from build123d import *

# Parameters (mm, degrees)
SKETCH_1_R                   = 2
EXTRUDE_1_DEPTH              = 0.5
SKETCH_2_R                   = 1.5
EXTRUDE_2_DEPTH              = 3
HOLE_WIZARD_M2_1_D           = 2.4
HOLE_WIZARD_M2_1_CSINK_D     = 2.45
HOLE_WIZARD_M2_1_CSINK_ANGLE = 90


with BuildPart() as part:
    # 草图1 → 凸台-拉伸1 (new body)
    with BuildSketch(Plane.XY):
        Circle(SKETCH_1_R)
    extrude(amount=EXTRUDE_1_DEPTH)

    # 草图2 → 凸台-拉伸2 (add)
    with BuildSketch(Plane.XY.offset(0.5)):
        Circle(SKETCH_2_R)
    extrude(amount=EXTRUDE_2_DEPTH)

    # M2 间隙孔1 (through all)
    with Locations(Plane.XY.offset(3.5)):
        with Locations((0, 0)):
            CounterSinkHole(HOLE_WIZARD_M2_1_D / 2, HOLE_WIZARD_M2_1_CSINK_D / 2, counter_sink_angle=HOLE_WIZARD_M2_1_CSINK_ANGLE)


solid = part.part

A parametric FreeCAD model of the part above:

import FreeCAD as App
import Part
import Sketcher
from FreeCAD import Vector

doc = App.newDocument("Part")
body = doc.addObject("PartDesign::Body", "Body")

# Sketch on XY plane
sketch1 = doc.addObject("Sketcher::SketchObject", "Sketch")
body.addObject(sketch1)
sketch1.AttachmentSupport = (doc.XY_Plane, [""])
sketch1.MapMode = "FlatFace"
sketch1.addGeometry(Part.Circle(Vector(0, 0, 0), Vector(0, 0, 1), 2), False)
sketch1.addConstraint([
    Sketcher.Constraint("Coincident", 0, 3, -1, 1),
    Sketcher.Constraint("Diameter", 0, 4.0),
])
pad1 = doc.addObject("PartDesign::Pad", "Pad")
body.addObject(pad1)
pad1.Profile = sketch1
pad1.Length = 0.5

# Sketch on XY plane
sketch2 = doc.addObject("Sketcher::SketchObject", "Sketch001")
body.addObject(sketch2)
sketch2.AttachmentSupport = (doc.XY_Plane, [""])
sketch2.MapMode = "FlatFace"
sketch2.AttachmentOffset = App.Placement(Vector(0, 0, 0.5), App.Rotation())
sketch2.addGeometry(Part.Circle(Vector(0, 0, 0), Vector(0, 0, 1), 1.5), False)
sketch2.addConstraint([
    Sketcher.Constraint("Coincident", 0, 3, -1, 1),
    Sketcher.Constraint("Diameter", 0, 3.0),
])
pad2 = doc.addObject("PartDesign::Pad", "Pad001")
body.addObject(pad2)
pad2.Profile = sketch2
pad2.Length = 3

# Sketch on XY plane
sketch3 = doc.addObject("Sketcher::SketchObject", "Sketch002")
body.addObject(sketch3)
sketch3.AttachmentSupport = (doc.XY_Plane, [""])
sketch3.MapMode = "FlatFace"
sketch3.AttachmentOffset = App.Placement(Vector(0, 0, 3.5), App.Rotation())
sketch3.addGeometry(Part.Circle(Vector(0, 0, 0), Vector(0, 0, 1), 1.2), False)
sketch3.addConstraint([
    Sketcher.Constraint("Coincident", 0, 3, -1, 1),
    Sketcher.Constraint("Diameter", 0, 2.4),
])
doc.recompute()
hole = doc.addObject("PartDesign::Hole", "Hole")
body.addObject(hole)
hole.Profile = sketch3
hole.ThreadType = "None"
hole.Diameter = 2.4
hole.DepthType = "ThroughAll"
hole.HoleCutType = "Countersink"
hole.HoleCutDiameter = 2.45
hole.HoleCutCountersinkAngle = 90

doc.recompute()
